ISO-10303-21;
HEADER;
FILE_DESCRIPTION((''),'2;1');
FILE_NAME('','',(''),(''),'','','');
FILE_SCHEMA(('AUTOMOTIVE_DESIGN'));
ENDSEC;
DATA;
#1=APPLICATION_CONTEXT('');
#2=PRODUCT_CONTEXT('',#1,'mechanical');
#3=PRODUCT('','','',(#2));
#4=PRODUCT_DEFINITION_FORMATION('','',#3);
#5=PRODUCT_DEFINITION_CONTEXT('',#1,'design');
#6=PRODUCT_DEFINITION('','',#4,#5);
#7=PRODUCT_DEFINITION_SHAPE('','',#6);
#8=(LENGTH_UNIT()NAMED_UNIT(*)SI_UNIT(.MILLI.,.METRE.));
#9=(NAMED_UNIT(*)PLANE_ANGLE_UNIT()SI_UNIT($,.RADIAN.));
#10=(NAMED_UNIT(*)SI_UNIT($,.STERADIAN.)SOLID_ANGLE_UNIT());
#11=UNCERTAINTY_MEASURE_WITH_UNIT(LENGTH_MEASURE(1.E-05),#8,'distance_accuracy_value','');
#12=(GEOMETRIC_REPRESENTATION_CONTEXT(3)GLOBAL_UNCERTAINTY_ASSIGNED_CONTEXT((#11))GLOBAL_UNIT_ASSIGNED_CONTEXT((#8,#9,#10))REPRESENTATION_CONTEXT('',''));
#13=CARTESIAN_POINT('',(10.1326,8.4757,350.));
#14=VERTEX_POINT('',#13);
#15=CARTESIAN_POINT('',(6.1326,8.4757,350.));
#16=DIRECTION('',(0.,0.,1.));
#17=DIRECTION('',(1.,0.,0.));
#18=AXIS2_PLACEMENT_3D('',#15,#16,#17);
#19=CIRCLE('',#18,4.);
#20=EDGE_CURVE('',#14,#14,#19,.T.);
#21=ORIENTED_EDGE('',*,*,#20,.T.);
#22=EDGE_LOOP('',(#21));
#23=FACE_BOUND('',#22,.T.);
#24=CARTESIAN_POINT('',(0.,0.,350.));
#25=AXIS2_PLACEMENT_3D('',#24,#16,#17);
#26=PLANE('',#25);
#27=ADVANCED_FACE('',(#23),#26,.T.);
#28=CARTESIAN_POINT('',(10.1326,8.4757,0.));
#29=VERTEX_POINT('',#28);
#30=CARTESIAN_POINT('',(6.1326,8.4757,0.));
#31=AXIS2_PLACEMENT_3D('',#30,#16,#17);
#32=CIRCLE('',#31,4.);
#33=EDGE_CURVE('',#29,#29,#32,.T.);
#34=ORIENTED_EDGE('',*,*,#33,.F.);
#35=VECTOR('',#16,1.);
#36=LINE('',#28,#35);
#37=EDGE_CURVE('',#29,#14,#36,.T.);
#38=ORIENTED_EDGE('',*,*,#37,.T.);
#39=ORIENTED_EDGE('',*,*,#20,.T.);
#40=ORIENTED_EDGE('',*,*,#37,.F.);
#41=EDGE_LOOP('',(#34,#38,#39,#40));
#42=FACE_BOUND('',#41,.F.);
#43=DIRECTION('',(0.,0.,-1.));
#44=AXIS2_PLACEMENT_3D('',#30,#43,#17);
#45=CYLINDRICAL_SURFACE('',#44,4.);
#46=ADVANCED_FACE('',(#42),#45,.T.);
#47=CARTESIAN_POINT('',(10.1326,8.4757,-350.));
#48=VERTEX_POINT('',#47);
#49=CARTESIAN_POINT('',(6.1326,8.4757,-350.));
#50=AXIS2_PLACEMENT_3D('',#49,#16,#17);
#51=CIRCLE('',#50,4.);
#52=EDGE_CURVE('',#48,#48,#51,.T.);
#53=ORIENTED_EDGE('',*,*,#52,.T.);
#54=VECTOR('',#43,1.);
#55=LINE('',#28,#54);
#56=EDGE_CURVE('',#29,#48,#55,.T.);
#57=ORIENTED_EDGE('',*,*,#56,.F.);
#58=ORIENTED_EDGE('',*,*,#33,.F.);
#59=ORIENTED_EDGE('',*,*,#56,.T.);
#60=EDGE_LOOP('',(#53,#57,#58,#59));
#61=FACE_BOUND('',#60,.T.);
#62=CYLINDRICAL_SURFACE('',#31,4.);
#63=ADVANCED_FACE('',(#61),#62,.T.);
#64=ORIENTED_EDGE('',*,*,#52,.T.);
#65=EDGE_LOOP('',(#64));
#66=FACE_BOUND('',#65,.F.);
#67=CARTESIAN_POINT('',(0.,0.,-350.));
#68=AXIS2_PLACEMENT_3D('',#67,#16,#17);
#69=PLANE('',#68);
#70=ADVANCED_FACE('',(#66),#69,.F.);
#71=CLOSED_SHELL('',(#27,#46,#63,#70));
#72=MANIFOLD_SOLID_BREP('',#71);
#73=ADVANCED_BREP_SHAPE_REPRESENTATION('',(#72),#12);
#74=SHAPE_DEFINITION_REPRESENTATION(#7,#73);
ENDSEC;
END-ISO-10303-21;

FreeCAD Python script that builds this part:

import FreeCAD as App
import Part
import Sketcher
from FreeCAD import Vector

doc = App.newDocument("Part")
body = doc.addObject("PartDesign::Body", "Body")

sketch1 = body.newObject("Sketcher::SketchObject", "Sketch")
sketch1.AttachmentSupport = (doc.getObject("XY_Plane"), [""])
sketch1.MapMode = "FlatFace"
sketch1.addGeometry(Part.Circle(Vector(6.1, 8.5, 0), Vector(0, 0, 1), 4), False)
sketch1.addConstraint(Sketcher.Constraint("Diameter", 0, 8.0))
sketch1.addConstraint(Sketcher.Constraint("DistanceX", -1, 1, 0, 3, 6.1326))
sketch1.addConstraint(Sketcher.Constraint("DistanceY", -1, 1, 0, 3, 8.4757))
pad1 = body.newObject("PartDesign::Pad", "Pad")
pad1.Profile = sketch1
pad1.Length = 700
pad1.Midplane = True

doc.recompute()
